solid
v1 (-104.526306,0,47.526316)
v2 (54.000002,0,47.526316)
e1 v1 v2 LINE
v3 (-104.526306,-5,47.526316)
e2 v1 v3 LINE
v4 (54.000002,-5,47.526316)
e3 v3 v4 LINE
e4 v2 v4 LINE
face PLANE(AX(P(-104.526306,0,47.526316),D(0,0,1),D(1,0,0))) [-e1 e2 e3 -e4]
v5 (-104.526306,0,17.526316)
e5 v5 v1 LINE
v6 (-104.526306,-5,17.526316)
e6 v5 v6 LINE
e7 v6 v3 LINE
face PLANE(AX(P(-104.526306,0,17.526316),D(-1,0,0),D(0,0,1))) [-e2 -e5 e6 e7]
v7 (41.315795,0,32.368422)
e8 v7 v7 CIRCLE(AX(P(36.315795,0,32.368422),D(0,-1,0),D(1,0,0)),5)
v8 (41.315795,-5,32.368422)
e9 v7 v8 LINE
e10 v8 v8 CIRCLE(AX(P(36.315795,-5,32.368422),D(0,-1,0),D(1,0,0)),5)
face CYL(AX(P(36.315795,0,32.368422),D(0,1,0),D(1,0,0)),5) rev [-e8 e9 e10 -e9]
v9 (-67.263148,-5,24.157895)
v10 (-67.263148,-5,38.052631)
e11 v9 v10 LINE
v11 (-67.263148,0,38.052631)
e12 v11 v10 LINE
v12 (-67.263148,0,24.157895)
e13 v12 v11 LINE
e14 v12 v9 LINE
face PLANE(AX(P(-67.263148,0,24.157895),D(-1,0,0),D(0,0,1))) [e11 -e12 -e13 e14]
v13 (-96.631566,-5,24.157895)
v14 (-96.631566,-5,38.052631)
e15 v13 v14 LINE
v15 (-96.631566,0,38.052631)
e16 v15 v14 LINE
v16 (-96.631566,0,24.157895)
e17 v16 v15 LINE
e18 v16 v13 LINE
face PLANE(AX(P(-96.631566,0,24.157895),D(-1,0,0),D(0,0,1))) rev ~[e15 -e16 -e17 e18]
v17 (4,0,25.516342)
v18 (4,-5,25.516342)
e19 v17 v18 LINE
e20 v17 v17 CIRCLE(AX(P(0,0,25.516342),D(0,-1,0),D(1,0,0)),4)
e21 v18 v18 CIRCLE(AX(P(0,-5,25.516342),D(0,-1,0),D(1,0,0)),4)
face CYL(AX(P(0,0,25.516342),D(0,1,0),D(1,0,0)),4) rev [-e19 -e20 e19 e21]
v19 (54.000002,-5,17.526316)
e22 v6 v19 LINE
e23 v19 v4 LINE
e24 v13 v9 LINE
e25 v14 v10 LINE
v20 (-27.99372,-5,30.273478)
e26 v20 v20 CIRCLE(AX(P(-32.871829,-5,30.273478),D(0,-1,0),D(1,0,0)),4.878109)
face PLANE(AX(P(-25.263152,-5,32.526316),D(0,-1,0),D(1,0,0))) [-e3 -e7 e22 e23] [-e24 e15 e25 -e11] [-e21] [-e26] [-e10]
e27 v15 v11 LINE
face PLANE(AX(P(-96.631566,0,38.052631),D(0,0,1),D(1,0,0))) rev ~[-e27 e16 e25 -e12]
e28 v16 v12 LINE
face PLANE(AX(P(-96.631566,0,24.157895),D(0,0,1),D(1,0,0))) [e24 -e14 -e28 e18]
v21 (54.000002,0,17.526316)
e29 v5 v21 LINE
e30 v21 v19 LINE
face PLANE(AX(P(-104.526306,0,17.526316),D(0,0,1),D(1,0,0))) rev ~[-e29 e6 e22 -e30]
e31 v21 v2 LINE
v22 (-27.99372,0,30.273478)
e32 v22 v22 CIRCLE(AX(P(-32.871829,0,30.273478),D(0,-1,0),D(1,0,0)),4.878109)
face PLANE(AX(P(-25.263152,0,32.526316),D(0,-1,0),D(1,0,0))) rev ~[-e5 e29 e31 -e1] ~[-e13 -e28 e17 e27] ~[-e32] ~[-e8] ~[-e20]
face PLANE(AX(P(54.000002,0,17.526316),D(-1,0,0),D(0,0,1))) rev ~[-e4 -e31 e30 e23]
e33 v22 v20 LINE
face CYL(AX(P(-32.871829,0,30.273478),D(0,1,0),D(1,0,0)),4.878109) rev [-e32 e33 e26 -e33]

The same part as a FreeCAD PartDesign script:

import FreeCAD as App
import Part
import Sketcher

V = App.Vector
Q = App.Units.Quantity

doc = App.newDocument("Part")
body = doc.addObject("PartDesign::Body", "Body")

# Sketch on XZ plane
sketch1 = body.newObject("Sketcher::SketchObject", "Sketch")
sketch1.AttachmentSupport = (doc.getObject("XZ_Plane"), [""])
sketch1.MapMode = "FlatFace"
sketch1.addGeometry(Part.LineSegment(V(-104.5, 47.5, 0), V(-104.5, 17.5, 0)), False)
sketch1.addGeometry(Part.LineSegment(V(-104.5, 17.5, 0), V(54, 17.5, 0)), False)
sketch1.addGeometry(Part.LineSegment(V(54, 17.5, 0), V(54, 47.5, 0)), False)
sketch1.addGeometry(Part.LineSegment(V(54, 47.5, 0), V(-104.5, 47.5, 0)), False)
sketch1.addGeometry(Part.Circle(V(0, 25.5, 0), V(0, 0, 1), 4), False)
sketch1.addGeometry(Part.LineSegment(V(-67.3, 24.2, 0), V(-96.6, 24.2, 0)), False)
sketch1.addGeometry(Part.LineSegment(V(-96.6, 24.2, 0), V(-96.6, 38.1, 0)), False)
sketch1.addGeometry(Part.LineSegment(V(-96.6, 38.1, 0), V(-67.3, 38.1, 0)), False)
sketch1.addGeometry(Part.LineSegment(V(-67.3, 38.1, 0), V(-67.3, 24.2, 0)), False)
sketch1.addGeometry(Part.Circle(V(-32.9, 30.3, 0), V(0, 0, 1), 4.9), False)
sketch1.addGeometry(Part.Circle(V(36.3, 32.4, 0), V(0, 0, 1), 5), False)
sketch1.addConstraint(Sketcher.Constraint("Coincident", 0, 2, 1, 1))
sketch1.addConstraint(Sketcher.Constraint("Coincident", 1, 2, 2, 1))
sketch1.addConstraint(Sketcher.Constraint("Coincident", 2, 2, 3, 1))
sketch1.addConstraint(Sketcher.Constraint("Coincident", 3, 2, 0, 1))
sketch1.addConstraint(Sketcher.Constraint("Coincident", 5, 2, 6, 1))
sketch1.addConstraint(Sketcher.Constraint("Coincident", 6, 2, 7, 1))
sketch1.addConstraint(Sketcher.Constraint("Coincident", 7, 2, 8, 1))
sketch1.addConstraint(Sketcher.Constraint("Coincident", 8, 2, 5, 1))
sketch1.addConstraint(Sketcher.Constraint("Vertical", 0))
sketch1.addConstraint(Sketcher.Constraint("Horizontal", 1))
sketch1.addConstraint(Sketcher.Constraint("Vertical", 2))
sketch1.addConstraint(Sketcher.Constraint("Horizontal", 3))
sketch1.addConstraint(Sketcher.Constraint("Horizontal", 5))
sketch1.addConstraint(Sketcher.Constraint("Vertical", 6))
sketch1.addConstraint(Sketcher.Constraint("Horizontal", 7))
sketch1.addConstraint(Sketcher.Constraint("Vertical", 8))
sketch1.addConstraint(Sketcher.Constraint("PointOnObject", 4, 3, -2))
sketch1.addConstraint(Sketcher.Constraint("Diameter", 4, Q("8 mm")))
sketch1.addConstraint(Sketcher.Constraint("Diameter", 10, Q("10 mm")))
sketch1.addConstraint(Sketcher.Constraint("DistanceY", 0, 2, 0, 1, Q("30 mm")))
sketch1.addConstraint(Sketcher.Constraint("DistanceX", -1, 1, 1, 2, Q("54.000002 mm")))
sketch1.addConstraint(Sketcher.Constraint("Diameter", 9, Q("9.756218 mm")))
sketch1.addConstraint(Sketcher.Constraint("DistanceX", 5, 2, 5, 1, Q("29.368418 mm")))
sketch1.addConstraint(Sketcher.Constraint("DistanceX", 0, 2, 10, 3, Q("140.842101 mm")))
sketch1.addConstraint(Sketcher.Constraint("DistanceX", 1, 1, 1, 2, Q("158.526307 mm")))
sketch1.addConstraint(Sketcher.Constraint("DistanceY", 6, 1, 6, 2, Q("13.894737 mm")))
sketch1.addConstraint(Sketcher.Constraint("DistanceX", 9, 3, -1, 1, Q("32.871829 mm")))
sketch1.addConstraint(Sketcher.Constraint("DistanceY", -1, 1, 9, 3, Q("30.273478 mm")))
sketch1.addConstraint(Sketcher.Constraint("DistanceY", -1, 1, 6, 2, Q("38.052631 mm")))
sketch1.addConstraint(Sketcher.Constraint("DistanceX", 7, 2, -1, 1, Q("67.263148 mm")))
sketch1.addConstraint(Sketcher.Constraint("DistanceY", 4, 3, 10, 3, Q("6.85208 mm")))
sketch1.addConstraint(Sketcher.Constraint("DistanceY", 9, 3, 2, 2, Q("17.252838 mm")))
sketch1.addConstraint(Sketcher.Constraint("DistanceY", 4, 3, 6, 2, Q("12.536289 mm")))
pad1 = body.newObject("PartDesign::Pad", "Pad")
pad1.Profile = sketch1
pad1.Length = 5

doc.recompute()
